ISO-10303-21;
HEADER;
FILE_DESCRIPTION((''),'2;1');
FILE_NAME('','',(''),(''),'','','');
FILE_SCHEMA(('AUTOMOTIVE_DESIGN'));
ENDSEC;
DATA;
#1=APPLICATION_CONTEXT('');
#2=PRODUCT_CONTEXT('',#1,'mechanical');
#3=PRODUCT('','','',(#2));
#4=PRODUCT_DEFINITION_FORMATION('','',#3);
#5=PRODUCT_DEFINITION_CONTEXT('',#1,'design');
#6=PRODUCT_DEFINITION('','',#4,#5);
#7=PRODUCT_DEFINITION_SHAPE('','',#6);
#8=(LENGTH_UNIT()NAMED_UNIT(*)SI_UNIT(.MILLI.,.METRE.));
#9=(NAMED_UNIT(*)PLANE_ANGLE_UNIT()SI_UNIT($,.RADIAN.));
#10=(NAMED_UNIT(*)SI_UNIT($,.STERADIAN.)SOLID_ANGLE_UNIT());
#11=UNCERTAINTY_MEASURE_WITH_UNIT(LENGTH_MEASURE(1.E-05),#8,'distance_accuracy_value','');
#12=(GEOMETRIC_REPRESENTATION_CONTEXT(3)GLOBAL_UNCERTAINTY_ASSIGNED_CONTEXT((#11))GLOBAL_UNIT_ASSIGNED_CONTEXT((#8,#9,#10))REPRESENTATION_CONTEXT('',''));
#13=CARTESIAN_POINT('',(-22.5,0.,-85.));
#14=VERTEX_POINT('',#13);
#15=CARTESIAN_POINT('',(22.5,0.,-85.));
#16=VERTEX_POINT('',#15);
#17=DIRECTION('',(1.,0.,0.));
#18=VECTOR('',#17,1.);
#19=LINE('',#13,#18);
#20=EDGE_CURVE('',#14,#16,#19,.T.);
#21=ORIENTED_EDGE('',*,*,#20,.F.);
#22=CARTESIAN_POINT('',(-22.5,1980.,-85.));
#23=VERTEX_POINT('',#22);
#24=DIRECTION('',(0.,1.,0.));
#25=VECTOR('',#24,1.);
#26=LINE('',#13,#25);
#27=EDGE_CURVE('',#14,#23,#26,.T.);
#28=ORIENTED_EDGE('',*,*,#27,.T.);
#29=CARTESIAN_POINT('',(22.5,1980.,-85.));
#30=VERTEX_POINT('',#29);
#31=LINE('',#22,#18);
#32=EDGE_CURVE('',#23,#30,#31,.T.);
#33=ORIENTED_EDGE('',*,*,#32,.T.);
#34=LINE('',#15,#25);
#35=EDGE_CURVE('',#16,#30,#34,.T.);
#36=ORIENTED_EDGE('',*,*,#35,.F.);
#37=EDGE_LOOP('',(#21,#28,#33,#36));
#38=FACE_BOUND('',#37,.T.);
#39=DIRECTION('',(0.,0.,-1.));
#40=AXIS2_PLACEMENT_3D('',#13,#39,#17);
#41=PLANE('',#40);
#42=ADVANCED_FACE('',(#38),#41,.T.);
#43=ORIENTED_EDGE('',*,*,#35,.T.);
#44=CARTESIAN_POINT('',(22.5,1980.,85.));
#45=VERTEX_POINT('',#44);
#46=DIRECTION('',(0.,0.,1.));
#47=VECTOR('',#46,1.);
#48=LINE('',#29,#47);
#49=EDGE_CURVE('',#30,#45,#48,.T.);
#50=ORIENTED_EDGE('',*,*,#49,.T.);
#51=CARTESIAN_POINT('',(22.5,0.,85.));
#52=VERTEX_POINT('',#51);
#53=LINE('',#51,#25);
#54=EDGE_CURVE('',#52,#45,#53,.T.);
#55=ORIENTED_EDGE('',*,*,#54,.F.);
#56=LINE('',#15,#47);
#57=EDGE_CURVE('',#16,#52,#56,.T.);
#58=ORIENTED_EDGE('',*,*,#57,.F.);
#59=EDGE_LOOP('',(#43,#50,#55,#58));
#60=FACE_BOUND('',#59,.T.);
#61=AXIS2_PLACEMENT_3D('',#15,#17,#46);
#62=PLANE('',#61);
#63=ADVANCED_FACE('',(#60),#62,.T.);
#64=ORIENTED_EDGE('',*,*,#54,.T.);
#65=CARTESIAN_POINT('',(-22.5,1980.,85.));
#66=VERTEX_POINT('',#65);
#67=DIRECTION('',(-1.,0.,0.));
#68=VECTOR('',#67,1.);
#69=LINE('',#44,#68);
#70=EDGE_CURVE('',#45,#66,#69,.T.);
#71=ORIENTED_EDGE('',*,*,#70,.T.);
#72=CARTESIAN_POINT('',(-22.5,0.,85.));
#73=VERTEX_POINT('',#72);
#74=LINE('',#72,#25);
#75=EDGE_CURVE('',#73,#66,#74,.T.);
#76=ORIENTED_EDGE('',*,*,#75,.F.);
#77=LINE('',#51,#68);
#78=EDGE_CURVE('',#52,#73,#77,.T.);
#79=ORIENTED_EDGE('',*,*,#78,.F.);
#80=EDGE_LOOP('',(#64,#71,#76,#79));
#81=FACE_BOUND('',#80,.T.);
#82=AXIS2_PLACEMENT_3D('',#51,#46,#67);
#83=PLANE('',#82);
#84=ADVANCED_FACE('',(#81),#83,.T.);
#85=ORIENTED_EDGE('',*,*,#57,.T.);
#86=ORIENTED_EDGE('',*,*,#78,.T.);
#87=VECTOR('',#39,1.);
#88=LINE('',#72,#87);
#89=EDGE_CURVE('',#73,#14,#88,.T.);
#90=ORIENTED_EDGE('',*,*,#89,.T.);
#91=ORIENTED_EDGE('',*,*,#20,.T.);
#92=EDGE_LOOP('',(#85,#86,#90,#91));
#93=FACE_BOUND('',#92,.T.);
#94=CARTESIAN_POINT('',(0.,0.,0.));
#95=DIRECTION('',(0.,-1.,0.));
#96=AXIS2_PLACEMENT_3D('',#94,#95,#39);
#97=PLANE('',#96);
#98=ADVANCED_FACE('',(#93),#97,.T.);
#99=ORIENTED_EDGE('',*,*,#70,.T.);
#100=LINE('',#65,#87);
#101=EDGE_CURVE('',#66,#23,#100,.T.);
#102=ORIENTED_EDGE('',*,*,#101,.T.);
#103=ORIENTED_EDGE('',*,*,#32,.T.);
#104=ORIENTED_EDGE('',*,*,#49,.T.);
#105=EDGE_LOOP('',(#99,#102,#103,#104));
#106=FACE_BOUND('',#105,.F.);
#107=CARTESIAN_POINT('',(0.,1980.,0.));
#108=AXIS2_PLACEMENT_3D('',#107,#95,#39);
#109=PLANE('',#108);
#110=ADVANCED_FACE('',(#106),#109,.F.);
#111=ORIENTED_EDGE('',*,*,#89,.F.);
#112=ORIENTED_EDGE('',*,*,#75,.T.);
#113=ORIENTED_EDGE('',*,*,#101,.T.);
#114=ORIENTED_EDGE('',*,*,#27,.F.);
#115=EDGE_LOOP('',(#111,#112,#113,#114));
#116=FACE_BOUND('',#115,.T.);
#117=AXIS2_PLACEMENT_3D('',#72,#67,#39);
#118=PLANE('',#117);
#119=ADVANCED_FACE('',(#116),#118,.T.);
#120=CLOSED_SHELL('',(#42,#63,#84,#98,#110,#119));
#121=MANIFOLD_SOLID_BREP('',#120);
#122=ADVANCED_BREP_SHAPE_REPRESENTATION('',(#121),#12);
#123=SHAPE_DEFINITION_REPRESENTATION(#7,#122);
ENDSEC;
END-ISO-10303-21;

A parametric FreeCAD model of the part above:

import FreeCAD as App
import Part
import Sketcher
from FreeCAD import Vector
Q = App.Units.Quantity


def add_polygon(sketch, points):
    """Adds a closed chain of lines whose ends are joined by coincident constraints."""
    first, n = sketch.GeometryCount, len(points)
    for a, b in zip(points, points[1:] + points[:1]):
        sketch.addGeometry(Part.LineSegment(App.Vector(*a, 0), App.Vector(*b, 0)), False)
    for i in range(n):
        sketch.addConstraint(Sketcher.Constraint("Coincident", first + i, 2, first + (i + 1) % n, 1))

doc = App.newDocument("Part")
body = doc.addObject("PartDesign::Body", "Body")

sketch1 = body.newObject("Sketcher::SketchObject", "Sketch")
sketch1.AttachmentSupport = (doc.getObject("XZ_Plane"), [""])
sketch1.MapMode = "FlatFace"
add_polygon(sketch1, [(-22, 85), (-22, -85), (22, -85), (22, 85)])
sketch1.addConstraint([
    Sketcher.Constraint("Vertical", 0),
    Sketcher.Constraint("Horizontal", 1),
    Sketcher.Constraint("Vertical", 2),
    Sketcher.Constraint("Horizontal", 3),
    Sketcher.Constraint("Symmetric", 0, 2, 2, 2, -1, 1),
    Sketcher.Constraint("DistanceX", 1, 1, 1, 2, Q("45 mm")),
    Sketcher.Constraint("DistanceY", 0, 2, 0, 1, Q("170 mm")),
])
pad1 = body.newObject("PartDesign::Pad", "Pad")
pad1.Profile = sketch1
pad1.Length = 1980
pad1.Reversed = True

doc.recompute()
